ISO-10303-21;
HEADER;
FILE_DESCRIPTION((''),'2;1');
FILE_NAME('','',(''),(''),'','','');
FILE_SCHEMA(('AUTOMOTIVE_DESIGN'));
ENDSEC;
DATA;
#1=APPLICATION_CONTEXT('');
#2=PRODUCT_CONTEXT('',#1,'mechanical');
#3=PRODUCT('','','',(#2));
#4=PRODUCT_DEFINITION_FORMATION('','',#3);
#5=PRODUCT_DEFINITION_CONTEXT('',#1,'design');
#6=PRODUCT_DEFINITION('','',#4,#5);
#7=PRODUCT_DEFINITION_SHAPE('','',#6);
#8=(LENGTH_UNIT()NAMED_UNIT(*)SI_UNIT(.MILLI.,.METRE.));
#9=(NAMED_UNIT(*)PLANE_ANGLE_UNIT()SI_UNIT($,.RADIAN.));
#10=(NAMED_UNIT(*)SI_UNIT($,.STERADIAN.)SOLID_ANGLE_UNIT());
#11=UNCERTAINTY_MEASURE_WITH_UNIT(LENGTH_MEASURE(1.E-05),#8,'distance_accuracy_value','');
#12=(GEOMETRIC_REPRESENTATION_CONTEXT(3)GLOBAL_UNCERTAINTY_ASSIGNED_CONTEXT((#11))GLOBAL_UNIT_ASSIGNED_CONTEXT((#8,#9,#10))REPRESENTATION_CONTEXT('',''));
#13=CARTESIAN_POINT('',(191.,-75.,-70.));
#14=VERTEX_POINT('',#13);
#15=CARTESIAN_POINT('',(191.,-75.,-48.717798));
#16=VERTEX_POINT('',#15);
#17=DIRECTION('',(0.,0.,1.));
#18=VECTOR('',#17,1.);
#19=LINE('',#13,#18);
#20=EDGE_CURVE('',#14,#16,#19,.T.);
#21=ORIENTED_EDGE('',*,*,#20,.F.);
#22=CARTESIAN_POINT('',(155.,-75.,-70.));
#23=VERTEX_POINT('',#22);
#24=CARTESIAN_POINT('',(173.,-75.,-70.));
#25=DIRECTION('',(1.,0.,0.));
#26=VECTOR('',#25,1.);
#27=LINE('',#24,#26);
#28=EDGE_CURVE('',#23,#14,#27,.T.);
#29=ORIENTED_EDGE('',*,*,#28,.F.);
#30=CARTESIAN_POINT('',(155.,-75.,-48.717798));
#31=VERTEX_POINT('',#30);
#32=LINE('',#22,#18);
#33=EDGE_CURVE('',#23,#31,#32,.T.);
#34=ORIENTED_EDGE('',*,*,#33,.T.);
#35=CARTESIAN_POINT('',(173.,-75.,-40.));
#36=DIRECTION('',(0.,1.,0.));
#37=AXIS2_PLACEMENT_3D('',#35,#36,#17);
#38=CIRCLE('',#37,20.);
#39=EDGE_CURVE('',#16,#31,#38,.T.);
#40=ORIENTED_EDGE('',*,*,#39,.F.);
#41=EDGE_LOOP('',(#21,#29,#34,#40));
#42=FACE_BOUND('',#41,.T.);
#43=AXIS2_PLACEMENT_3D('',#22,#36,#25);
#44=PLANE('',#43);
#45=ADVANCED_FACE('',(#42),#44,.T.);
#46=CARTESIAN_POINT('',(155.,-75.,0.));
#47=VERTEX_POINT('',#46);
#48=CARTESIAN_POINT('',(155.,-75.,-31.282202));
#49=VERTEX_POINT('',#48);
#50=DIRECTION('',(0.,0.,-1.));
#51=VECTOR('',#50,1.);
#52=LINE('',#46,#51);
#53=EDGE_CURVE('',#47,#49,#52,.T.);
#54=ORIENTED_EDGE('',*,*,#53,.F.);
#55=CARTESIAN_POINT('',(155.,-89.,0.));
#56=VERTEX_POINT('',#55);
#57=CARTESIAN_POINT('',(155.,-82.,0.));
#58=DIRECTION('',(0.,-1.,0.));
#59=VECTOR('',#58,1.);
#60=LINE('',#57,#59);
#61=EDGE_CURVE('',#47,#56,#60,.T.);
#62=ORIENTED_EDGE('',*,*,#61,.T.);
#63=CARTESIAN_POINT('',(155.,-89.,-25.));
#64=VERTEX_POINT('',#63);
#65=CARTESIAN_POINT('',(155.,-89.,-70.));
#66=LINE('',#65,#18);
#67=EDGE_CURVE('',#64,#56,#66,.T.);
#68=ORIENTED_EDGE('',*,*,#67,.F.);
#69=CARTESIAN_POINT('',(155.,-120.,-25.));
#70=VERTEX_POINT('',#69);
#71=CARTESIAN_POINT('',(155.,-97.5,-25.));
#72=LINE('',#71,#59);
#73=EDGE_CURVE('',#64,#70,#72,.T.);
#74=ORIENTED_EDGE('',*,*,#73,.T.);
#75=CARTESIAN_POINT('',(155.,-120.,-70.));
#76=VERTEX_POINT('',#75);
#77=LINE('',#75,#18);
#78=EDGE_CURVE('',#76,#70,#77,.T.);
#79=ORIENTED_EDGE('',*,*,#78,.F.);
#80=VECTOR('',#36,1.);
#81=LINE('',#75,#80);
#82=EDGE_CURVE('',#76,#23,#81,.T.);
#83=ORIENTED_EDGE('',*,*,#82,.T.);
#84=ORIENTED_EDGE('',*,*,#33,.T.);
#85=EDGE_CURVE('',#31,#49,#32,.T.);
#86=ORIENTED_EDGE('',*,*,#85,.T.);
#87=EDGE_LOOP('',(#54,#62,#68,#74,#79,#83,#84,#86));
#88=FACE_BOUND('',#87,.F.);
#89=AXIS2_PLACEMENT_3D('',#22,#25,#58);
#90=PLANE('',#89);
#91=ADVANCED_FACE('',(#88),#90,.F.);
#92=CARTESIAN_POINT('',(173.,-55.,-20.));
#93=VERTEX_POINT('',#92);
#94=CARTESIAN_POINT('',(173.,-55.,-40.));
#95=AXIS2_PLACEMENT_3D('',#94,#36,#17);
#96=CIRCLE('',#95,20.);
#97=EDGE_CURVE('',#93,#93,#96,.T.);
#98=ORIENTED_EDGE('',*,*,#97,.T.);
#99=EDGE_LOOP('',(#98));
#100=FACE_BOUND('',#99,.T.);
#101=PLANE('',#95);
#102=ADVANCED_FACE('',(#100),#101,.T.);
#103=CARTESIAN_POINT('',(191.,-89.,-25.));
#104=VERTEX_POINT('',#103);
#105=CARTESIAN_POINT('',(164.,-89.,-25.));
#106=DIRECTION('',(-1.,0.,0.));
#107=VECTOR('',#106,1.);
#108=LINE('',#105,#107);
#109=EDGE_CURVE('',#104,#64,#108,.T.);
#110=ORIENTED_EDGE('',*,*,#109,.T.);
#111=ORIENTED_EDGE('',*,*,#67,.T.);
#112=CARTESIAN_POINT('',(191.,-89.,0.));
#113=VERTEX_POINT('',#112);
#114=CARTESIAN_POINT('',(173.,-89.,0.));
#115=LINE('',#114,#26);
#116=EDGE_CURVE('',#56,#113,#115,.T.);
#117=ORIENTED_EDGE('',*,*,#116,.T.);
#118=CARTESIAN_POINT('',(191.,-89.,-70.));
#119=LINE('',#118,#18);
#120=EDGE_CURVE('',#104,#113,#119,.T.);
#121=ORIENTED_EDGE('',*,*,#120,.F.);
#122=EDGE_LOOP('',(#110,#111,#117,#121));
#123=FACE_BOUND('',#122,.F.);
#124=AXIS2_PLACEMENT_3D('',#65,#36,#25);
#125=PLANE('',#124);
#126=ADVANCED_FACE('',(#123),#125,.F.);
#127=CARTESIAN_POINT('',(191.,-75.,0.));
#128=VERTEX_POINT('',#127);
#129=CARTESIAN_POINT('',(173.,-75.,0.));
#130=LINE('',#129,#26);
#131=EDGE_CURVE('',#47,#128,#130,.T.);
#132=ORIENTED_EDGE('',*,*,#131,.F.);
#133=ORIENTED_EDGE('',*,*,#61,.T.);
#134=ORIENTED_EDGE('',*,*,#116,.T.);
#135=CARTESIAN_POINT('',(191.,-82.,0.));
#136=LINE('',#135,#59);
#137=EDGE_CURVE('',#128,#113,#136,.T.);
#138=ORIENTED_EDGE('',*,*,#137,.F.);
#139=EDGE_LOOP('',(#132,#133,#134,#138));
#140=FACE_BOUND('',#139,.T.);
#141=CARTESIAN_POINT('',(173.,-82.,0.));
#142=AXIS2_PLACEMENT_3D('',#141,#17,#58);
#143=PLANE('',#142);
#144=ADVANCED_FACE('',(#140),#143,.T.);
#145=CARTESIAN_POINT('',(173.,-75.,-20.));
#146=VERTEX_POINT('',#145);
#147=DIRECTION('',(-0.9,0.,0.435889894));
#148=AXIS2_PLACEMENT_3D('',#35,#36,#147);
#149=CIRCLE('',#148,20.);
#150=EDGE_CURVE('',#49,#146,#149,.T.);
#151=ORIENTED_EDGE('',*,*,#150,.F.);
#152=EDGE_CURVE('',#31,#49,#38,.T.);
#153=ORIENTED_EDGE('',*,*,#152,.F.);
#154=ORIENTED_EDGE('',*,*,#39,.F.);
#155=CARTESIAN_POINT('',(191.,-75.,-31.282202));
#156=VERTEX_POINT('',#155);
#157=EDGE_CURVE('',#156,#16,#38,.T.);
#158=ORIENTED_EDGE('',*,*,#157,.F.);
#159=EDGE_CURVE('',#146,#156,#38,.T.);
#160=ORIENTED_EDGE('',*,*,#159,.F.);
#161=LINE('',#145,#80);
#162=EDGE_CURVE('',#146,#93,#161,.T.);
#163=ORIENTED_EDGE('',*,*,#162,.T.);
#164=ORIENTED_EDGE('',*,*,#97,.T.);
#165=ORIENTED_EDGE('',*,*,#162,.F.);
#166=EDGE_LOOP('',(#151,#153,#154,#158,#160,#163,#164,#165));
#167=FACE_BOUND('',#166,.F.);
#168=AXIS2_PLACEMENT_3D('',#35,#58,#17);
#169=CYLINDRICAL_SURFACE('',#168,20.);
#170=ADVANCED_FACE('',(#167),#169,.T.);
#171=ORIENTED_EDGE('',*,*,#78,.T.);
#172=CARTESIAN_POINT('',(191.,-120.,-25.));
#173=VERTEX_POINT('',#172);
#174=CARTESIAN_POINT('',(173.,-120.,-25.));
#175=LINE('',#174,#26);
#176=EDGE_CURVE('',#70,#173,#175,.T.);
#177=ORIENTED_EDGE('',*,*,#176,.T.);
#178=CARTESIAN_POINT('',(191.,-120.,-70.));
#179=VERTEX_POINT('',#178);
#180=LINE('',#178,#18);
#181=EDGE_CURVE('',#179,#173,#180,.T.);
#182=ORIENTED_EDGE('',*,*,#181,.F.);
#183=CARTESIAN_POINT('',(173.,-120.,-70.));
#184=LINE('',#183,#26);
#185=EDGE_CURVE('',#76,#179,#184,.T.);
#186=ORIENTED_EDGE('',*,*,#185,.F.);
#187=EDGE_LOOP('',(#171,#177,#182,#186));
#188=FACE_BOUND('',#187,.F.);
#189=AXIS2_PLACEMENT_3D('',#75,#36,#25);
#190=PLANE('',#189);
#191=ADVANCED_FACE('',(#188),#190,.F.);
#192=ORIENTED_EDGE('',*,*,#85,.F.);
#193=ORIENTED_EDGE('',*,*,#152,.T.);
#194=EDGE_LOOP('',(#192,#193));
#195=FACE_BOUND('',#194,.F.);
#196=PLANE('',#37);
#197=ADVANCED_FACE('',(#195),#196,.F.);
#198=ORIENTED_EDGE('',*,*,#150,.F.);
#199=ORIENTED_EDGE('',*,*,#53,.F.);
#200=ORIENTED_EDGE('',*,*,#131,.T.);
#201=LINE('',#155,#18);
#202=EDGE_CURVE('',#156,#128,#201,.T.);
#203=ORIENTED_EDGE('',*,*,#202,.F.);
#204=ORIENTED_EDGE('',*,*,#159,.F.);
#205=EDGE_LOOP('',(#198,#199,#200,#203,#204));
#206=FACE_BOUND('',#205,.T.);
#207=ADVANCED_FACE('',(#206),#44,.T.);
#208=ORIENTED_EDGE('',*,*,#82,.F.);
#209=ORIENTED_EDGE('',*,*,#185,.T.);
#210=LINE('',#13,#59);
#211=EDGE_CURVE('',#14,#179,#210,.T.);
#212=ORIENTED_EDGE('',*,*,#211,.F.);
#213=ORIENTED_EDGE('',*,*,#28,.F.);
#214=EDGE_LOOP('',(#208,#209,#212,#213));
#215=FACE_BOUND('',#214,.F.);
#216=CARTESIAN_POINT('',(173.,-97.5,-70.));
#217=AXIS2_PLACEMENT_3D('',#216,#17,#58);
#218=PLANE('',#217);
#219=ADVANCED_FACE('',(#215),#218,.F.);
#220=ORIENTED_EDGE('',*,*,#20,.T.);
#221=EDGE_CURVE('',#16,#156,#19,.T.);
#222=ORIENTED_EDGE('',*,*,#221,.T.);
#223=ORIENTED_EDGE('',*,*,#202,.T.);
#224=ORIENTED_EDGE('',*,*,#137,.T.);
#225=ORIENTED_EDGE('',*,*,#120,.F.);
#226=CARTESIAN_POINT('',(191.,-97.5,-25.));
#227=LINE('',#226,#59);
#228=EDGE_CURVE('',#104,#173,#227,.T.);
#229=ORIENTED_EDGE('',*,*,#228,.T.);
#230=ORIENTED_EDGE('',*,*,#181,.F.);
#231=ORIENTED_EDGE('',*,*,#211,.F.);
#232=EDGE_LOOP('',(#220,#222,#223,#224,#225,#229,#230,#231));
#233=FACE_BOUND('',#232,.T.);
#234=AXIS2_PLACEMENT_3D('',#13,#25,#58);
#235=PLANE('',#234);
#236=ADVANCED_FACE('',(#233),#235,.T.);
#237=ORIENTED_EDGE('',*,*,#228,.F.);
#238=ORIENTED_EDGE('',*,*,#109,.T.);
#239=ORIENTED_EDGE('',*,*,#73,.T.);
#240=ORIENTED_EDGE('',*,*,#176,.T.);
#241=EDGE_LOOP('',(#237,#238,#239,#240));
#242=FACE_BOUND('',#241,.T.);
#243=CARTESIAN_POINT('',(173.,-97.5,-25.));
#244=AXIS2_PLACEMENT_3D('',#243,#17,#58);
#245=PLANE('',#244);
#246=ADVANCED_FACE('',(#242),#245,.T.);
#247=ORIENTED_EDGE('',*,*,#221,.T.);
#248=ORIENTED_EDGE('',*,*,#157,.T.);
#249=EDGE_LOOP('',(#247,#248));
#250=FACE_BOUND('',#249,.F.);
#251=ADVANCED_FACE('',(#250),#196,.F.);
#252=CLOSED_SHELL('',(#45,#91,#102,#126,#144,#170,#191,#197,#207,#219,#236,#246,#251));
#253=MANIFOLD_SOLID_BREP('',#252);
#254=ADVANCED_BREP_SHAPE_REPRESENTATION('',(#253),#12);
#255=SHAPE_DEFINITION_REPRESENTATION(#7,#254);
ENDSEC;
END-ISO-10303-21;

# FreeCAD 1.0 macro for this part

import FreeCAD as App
import Part
import Sketcher
Q = App.Units.Quantity

doc = App.newDocument("Part")
body = doc.addObject("PartDesign::Body", "Body")

# Sketch on XY plane
sketch1 = body.newObject("Sketcher::SketchObject", "Sketch")
sketch1.AttachmentSupport = (doc.getObject("XY_Plane"), [""])
sketch1.MapMode = "FlatFace"
sketch1.addGeometry([
    Part.LineSegment(App.Vector(0, 36, 0), App.Vector(0, 0, 0)),
    Part.LineSegment(App.Vector(0, 0, 0), App.Vector(45, 0, 0)),
    Part.LineSegment(App.Vector(45, 0, 0), App.Vector(45, 36, 0)),
    Part.LineSegment(App.Vector(45, 36, 0), App.Vector(0, 36, 0)),
], False)
sketch1.addConstraint([
    Sketcher.Constraint("Coincident", 0, 2, 1, 1),
    Sketcher.Constraint("Coincident", 1, 2, 2, 1),
    Sketcher.Constraint("Coincident", 2, 2, 3, 1),
    Sketcher.Constraint("Coincident", 3, 2, 0, 1),
    Sketcher.Constraint("Vertical", 0),
    Sketcher.Constraint("Horizontal", 1),
    Sketcher.Constraint("Vertical", 2),
    Sketcher.Constraint("Horizontal", 3),
    Sketcher.Constraint("Coincident", 0, 2, -1, 1),
    Sketcher.Constraint("DistanceX", 1, 1, 1, 2, Q("45 mm")),
    Sketcher.Constraint("DistanceY", 0, 2, 0, 1, Q("36 mm")),
])
pad1 = body.newObject("PartDesign::Pad", "Pad")
pad1.Profile = sketch1
pad1.Length = 45
body2 = doc.addObject("PartDesign::Body", "Body001")

# Sketch on XY plane
sketch2 = body2.newObject("Sketcher::SketchObject", "Sketch001")
sketch2.AttachmentSupport = (doc.getObject("XY_Plane001"), [""])
sketch2.MapMode = "FlatFace"
sketch2.addGeometry([
    Part.LineSegment(App.Vector(0, 36, 0), App.Vector(0, 0, 0)),
    Part.LineSegment(App.Vector(0, 0, 0), App.Vector(14, 0, 0)),
    Part.LineSegment(App.Vector(14, 0, 0), App.Vector(14, 36, 0)),
    Part.LineSegment(App.Vector(14, 36, 0), App.Vector(0, 36, 0)),
], False)
sketch2.addConstraint([
    Sketcher.Constraint("Coincident", 0, 2, 1, 1),
    Sketcher.Constraint("Coincident", 1, 2, 2, 1),
    Sketcher.Constraint("Coincident", 2, 2, 3, 1),
    Sketcher.Constraint("Coincident", 3, 2, 0, 1),
    Sketcher.Constraint("Vertical", 0),
    Sketcher.Constraint("Horizontal", 1),
    Sketcher.Constraint("Vertical", 2),
    Sketcher.Constraint("Horizontal", 3),
    Sketcher.Constraint("Coincident", 0, 2, -1, 1),
    Sketcher.Constraint("DistanceX", 1, 1, 1, 2, Q("14 mm")),
    Sketcher.Constraint("DistanceY", 0, 2, 0, 1, Q("36 mm")),
])
pad2 = body2.newObject("PartDesign::Pad", "Pad001")
pad2.Profile = sketch2
pad2.Length = 70
body3 = doc.addObject("PartDesign::Body", "Body002")

# Sketch on YZ plane
sketch3 = body3.newObject("Sketcher::SketchObject", "Sketch002")
sketch3.AttachmentSupport = (doc.getObject("YZ_Plane002"), [""])
sketch3.MapMode = "FlatFace"
sketch3.addGeometry(Part.Circle(App.Vector(18, 30, 0), App.Vector(0, 0, 1), 20), False)
sketch3.addConstraint([
    Sketcher.Constraint("Diameter", 0, Q("40 mm")),
    Sketcher.Constraint("DistanceX", -1, 1, 0, 3, Q("18 mm")),
    Sketcher.Constraint("DistanceY", -1, 1, 0, 3, Q("30 mm")),
])
pad3 = body3.newObject("PartDesign::Pad", "Pad002")
pad3.Profile = sketch3
pad3.Length = 20
pad3.Reversed = True
doc.recompute()

boolean = body3.newObject("PartDesign::Boolean", "Boolean")
boolean.Type = "Fuse"
boolean.addObjects([body])
doc.recompute()

boolean2 = body3.newObject("PartDesign::Boolean", "Boolean001")
boolean2.Type = "Fuse"
boolean2.addObjects([body2])
body4 = doc.addObject("PartDesign::Body", "Body003")
doc.recompute()

body3.Placement = App.Placement(App.Vector(155, -75, -70), App.Rotation(App.Vector(0, 0, -1), 90))
boolean3 = body4.newObject("PartDesign::Boolean", "Boolean002")
boolean3.Type = "Fuse"
boolean3.addObjects([body3])

doc.recompute()
